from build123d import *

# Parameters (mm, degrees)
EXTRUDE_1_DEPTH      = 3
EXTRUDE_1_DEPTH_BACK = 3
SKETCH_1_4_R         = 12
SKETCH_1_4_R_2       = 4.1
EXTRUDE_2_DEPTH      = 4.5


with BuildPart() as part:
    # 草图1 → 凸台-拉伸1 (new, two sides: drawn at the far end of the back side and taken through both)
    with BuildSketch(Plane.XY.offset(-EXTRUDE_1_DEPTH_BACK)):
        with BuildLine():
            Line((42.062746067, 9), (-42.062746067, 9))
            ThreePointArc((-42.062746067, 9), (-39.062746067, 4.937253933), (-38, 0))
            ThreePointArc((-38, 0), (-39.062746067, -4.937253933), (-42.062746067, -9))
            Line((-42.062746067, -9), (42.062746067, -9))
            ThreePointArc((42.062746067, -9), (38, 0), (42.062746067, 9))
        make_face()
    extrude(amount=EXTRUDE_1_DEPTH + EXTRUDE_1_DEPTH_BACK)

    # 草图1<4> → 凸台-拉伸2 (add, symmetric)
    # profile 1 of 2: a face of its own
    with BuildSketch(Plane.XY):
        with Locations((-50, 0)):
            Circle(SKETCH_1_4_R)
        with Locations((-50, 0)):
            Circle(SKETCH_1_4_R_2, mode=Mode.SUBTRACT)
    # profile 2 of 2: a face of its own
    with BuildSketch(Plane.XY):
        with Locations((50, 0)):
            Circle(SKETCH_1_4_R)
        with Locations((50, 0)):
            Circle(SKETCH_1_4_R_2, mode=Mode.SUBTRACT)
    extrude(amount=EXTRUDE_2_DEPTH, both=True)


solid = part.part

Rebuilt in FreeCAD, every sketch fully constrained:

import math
import FreeCAD as App
import Part
import Sketcher

doc = App.newDocument("Part")
body = doc.addObject("PartDesign::Body", "Body")

sketch1 = doc.addObject("Sketcher::SketchObject", "Sketch")
body.addObject(sketch1)
sketch1.AttachmentSupport = (doc.XY_Plane, [""])
sketch1.MapMode = "FlatFace"
sketch1.addGeometry([
    Part.LineSegment(App.Vector(42, 9, 0), App.Vector(-42, 9, 0)),
    Part.ArcOfCircle(Part.Circle(App.Vector(-50, 0, 0), App.Vector(0, 0, 1), 12), math.radians(0), math.radians(49)),
    Part.ArcOfCircle(Part.Circle(App.Vector(-50, 0, 0), App.Vector(0, 0, 1), 12), math.radians(-49), math.radians(0)),
    Part.LineSegment(App.Vector(-42, -9, 0), App.Vector(42, -9, 0)),
    Part.ArcOfCircle(Part.Circle(App.Vector(50, 0, 0), App.Vector(0, 0, 1), 12), math.radians(131), math.radians(229)),
], False)
sketch1.addConstraint([
    Sketcher.Constraint("Coincident", 0, 2, 1, 2),
    Sketcher.Constraint("Tangent", 1, 1, 2, 2),
    Sketcher.Constraint("Coincident", 2, 1, 3, 1),
    Sketcher.Constraint("Coincident", 3, 2, 4, 2),
    Sketcher.Constraint("Coincident", 4, 1, 0, 1),
    Sketcher.Constraint("Horizontal", 0),
    Sketcher.Constraint("Horizontal", 3),
    Sketcher.Constraint("Equal", 1, 2),
    Sketcher.Constraint("Equal", 2, 4),
    Sketcher.Constraint("Symmetric", 1, 3, 4, 3, -1, 1),
    Sketcher.Constraint("Symmetric", 0, 2, 2, 1, -1),
    Sketcher.Constraint("PointOnObject", 1, 1, -1),
    Sketcher.Constraint("Radius", 1, 12.0),
    Sketcher.Constraint("DistanceX", 1, 3, -1, 1, 50.0),
    Sketcher.Constraint("DistanceY", -1, 1, 0, 2, 9.0),
])
pad1 = doc.addObject("PartDesign::Pad", "Pad")
body.addObject(pad1)
pad1.Profile = sketch1
pad1.Type = "TwoLengths"
pad1.Length = 3
pad1.Length2 = 3

sketch2 = doc.addObject("Sketcher::SketchObject", "Sketch001")
body.addObject(sketch2)
sketch2.AttachmentSupport = (doc.XY_Plane, [""])
sketch2.MapMode = "FlatFace"
sketch2.addGeometry([
    Part.Circle(App.Vector(-50, 0, 0), App.Vector(0, 0, 1), 12),
    Part.Circle(App.Vector(-50, 0, 0), App.Vector(0, 0, 1), 4.1),
    Part.Circle(App.Vector(50, 0, 0), App.Vector(0, 0, 1), 12),
    Part.Circle(App.Vector(50, 0, 0), App.Vector(0, 0, 1), 4.1),
], False)
sketch2.addConstraint([
    Sketcher.Constraint("Coincident", 1, 3, 0, 3),
    Sketcher.Constraint("Coincident", 3, 3, 2, 3),
    Sketcher.Constraint("Equal", 0, 2),
    Sketcher.Constraint("Equal", 1, 3),
    Sketcher.Constraint("Symmetric", 0, 3, 2, 3, -1, 1),
    Sketcher.Constraint("PointOnObject", 0, 3, -1),
    Sketcher.Constraint("Diameter", 0, 24.0),
    Sketcher.Constraint("Diameter", 1, 8.2),
    Sketcher.Constraint("DistanceX", 0, 3, -1, 1, 50.0),
])
pad2 = doc.addObject("PartDesign::Pad", "Pad001")
body.addObject(pad2)
pad2.Profile = sketch2
pad2.Length = 9
pad2.Midplane = True

doc.recompute()
